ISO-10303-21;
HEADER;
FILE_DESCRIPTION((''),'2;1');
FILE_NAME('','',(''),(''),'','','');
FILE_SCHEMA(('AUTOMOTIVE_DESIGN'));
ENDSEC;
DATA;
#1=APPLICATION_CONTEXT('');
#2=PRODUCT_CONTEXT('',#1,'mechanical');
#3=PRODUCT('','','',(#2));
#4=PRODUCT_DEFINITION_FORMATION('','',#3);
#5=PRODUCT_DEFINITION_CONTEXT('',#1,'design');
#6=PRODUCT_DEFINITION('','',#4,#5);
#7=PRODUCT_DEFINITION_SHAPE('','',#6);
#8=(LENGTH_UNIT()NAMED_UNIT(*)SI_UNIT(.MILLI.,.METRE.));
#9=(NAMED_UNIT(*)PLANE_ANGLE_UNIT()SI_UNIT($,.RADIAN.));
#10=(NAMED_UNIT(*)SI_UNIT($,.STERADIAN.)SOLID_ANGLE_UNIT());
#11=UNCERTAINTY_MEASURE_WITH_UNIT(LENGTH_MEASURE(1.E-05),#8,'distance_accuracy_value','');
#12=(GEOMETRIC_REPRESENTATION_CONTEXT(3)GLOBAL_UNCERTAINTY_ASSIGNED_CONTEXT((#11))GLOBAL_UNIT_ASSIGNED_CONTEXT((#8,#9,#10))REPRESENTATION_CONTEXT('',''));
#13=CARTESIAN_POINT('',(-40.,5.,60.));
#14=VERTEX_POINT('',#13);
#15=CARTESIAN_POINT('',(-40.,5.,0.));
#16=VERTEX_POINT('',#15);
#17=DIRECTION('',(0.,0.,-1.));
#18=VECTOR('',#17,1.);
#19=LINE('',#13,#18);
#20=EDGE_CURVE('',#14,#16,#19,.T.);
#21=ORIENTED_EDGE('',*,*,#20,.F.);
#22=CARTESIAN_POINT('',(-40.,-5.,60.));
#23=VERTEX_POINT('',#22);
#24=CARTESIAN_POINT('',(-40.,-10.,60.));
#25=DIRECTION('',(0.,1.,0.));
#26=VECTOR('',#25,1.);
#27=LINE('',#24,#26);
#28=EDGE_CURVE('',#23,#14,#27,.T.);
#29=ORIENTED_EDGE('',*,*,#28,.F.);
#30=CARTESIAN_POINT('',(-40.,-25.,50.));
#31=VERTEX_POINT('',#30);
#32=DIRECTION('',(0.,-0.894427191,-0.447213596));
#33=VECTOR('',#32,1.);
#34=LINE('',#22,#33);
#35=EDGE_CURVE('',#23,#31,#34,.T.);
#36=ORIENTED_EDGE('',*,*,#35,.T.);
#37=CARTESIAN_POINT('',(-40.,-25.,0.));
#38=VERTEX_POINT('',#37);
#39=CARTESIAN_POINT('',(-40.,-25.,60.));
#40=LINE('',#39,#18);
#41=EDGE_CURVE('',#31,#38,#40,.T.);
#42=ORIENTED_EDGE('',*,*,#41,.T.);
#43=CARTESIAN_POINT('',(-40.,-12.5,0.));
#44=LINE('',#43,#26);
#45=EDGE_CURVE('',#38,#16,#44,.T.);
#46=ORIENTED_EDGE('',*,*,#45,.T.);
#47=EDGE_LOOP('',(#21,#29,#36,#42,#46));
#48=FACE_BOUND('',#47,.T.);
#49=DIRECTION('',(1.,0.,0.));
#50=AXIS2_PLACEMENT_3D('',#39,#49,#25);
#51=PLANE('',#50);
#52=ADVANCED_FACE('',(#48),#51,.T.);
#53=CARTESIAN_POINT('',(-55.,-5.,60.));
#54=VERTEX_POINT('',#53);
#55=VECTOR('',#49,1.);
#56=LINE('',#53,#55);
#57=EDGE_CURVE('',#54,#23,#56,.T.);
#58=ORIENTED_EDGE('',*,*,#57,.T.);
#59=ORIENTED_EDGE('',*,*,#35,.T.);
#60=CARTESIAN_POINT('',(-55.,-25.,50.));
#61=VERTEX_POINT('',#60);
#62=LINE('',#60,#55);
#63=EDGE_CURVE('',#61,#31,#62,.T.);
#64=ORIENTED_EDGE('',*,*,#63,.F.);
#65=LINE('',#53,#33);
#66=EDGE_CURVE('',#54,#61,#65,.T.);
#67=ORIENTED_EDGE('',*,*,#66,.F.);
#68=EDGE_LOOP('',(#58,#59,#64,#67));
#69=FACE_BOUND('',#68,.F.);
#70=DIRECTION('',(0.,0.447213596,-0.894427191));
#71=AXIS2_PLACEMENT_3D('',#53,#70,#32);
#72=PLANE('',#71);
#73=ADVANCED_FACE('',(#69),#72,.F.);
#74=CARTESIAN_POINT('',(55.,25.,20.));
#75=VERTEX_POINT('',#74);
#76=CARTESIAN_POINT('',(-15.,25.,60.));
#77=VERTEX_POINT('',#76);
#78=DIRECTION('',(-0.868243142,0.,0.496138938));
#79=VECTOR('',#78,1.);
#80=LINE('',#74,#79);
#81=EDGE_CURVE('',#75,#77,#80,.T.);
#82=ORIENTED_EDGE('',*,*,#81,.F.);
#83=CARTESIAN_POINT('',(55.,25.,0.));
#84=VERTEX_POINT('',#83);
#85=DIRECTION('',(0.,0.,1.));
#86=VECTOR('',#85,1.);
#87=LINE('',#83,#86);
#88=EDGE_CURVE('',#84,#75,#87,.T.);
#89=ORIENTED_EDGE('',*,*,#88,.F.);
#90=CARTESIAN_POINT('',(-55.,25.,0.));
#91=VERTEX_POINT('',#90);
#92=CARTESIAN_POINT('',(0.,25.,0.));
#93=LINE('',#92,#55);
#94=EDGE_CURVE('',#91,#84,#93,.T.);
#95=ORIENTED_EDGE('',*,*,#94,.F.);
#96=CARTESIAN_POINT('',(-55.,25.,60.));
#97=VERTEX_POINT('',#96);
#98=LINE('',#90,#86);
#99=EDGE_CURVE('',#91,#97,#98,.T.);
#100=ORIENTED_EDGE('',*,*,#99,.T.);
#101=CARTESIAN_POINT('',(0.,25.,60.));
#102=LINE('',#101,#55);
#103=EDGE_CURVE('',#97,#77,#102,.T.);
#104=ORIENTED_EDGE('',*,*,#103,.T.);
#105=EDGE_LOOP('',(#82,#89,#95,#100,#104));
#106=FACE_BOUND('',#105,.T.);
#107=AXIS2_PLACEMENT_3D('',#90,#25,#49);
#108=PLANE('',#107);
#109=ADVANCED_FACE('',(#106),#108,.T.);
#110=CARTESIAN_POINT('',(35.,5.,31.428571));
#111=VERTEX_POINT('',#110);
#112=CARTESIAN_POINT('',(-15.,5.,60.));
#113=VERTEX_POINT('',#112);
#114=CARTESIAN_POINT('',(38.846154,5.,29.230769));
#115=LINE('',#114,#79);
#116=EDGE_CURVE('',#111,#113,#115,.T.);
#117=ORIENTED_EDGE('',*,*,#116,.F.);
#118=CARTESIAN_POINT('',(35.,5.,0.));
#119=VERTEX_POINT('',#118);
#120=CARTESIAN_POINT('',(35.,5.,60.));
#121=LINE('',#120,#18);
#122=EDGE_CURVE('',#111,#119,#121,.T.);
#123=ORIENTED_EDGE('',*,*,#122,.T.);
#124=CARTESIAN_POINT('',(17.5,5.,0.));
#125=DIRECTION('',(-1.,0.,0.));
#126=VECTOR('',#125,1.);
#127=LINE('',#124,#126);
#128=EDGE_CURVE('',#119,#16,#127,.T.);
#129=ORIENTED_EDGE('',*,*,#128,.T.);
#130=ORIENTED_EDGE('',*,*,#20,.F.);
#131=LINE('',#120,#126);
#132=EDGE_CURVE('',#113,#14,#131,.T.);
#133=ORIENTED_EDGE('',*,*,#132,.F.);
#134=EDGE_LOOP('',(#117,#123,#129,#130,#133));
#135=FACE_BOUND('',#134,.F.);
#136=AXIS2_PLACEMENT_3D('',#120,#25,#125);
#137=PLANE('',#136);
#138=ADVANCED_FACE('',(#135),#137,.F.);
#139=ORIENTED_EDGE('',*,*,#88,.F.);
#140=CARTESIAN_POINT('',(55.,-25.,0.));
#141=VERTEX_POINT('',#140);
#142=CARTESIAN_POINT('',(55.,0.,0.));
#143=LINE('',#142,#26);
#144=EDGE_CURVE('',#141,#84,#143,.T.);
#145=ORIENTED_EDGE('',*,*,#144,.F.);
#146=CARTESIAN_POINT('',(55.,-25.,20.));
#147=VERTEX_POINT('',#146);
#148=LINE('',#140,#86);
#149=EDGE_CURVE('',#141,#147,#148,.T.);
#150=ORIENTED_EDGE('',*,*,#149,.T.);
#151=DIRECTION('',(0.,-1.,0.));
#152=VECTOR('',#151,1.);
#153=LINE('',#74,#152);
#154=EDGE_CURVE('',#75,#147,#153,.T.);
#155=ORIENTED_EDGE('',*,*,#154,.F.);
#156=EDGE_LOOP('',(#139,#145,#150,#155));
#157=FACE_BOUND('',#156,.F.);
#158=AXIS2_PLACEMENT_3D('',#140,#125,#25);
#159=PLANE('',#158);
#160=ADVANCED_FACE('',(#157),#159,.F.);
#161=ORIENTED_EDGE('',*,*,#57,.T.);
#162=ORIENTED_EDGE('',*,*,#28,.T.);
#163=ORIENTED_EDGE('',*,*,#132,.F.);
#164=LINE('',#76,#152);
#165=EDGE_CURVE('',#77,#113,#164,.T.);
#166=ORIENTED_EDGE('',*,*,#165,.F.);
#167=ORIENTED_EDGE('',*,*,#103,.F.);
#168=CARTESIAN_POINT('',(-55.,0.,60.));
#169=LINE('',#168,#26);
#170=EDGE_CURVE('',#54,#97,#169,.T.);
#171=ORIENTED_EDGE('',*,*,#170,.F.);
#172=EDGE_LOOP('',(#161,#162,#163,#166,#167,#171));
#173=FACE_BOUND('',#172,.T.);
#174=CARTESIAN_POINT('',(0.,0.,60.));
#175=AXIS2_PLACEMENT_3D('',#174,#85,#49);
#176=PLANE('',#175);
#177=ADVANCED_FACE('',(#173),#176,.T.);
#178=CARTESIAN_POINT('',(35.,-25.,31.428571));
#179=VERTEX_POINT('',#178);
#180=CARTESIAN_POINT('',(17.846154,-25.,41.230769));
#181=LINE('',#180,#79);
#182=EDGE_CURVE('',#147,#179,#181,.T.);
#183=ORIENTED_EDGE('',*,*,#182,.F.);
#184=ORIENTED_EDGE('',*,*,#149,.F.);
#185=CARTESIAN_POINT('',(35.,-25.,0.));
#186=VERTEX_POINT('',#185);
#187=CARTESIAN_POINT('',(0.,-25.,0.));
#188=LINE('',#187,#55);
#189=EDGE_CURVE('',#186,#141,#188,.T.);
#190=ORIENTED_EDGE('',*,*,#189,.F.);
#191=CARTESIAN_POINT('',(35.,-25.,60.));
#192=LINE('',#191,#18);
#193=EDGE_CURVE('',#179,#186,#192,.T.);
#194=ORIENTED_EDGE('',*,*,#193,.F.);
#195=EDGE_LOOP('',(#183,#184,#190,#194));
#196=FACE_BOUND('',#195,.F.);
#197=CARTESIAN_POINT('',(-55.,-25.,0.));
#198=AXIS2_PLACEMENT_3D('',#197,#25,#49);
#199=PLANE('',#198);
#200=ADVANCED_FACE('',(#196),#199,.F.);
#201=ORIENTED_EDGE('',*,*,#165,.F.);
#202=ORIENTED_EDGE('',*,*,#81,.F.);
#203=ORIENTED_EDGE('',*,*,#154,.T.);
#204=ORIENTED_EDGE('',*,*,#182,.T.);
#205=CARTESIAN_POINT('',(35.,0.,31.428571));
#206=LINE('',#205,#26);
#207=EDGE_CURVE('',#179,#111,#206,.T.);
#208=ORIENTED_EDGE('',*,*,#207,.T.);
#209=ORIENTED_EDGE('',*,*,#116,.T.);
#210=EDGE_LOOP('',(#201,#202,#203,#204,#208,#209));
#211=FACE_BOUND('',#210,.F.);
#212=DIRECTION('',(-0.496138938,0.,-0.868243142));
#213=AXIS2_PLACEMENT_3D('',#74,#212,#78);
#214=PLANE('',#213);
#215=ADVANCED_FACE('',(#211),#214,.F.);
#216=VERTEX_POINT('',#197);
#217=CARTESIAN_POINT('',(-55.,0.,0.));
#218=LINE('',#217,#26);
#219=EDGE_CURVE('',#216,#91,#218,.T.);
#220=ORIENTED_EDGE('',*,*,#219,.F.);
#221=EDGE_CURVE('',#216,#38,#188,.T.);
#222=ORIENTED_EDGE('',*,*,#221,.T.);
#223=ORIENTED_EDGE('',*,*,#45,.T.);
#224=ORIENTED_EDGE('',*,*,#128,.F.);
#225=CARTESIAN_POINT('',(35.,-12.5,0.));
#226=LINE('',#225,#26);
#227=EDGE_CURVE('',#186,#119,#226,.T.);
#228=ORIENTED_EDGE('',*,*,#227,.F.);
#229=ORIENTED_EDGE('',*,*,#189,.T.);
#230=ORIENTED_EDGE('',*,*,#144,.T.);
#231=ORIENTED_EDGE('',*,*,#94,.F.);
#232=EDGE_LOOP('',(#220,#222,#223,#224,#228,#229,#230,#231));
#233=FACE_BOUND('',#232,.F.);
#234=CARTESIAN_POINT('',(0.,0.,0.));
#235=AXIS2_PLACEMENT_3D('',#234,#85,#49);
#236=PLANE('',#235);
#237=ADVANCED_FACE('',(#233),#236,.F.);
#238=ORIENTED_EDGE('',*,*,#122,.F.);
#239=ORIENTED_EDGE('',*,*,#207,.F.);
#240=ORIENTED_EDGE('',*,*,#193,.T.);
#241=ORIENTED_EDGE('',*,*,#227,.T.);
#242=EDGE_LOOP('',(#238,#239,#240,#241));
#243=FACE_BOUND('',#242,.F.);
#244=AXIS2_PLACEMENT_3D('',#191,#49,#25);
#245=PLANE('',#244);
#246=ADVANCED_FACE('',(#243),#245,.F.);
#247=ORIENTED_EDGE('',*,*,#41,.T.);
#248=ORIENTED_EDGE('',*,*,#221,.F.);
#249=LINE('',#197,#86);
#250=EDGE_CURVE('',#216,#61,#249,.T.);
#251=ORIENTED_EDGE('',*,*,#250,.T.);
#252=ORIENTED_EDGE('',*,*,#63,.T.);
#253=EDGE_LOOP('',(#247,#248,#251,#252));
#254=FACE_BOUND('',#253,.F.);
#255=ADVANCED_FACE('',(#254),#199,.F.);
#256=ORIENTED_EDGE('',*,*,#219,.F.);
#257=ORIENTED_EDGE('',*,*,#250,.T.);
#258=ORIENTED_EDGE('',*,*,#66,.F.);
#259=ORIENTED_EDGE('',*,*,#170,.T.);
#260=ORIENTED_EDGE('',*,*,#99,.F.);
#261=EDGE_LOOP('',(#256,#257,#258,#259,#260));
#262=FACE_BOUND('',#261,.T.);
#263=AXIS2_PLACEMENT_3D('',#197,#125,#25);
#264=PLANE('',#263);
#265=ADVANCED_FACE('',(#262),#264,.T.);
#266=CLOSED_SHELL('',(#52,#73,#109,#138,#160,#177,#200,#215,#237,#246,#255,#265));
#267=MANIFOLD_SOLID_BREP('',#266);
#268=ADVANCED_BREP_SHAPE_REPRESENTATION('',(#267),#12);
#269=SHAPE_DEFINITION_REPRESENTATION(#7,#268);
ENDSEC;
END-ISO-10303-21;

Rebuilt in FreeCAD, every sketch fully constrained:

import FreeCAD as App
import Part
import Sketcher

V = App.Vector
Q = App.Units.Quantity


def add_polygon(sketch, points):
    """Adds a closed chain of lines whose ends are joined by coincident constraints."""
    first, n = sketch.GeometryCount, len(points)
    for a, b in zip(points, points[1:] + points[:1]):
        sketch.addGeometry(Part.LineSegment(App.Vector(*a, 0), App.Vector(*b, 0)), False)
    for i in range(n):
        sketch.addConstraint(Sketcher.Constraint("Coincident", first + i, 2, first + (i + 1) % n, 1))

doc = App.newDocument("Part")
body = doc.addObject("PartDesign::Body", "Body")

sketch1 = body.newObject("Sketcher::SketchObject", "Sketch")
sketch1.AttachmentSupport = (doc.getObject("XY_Plane"), [""])
sketch1.MapMode = "FlatFace"
add_polygon(sketch1, [(-55, 25), (-55, -25), (55, -25), (55, 25)])
sketch1.addConstraint([
    Sketcher.Constraint("Vertical", 0),
    Sketcher.Constraint("Horizontal", 1),
    Sketcher.Constraint("Vertical", 2),
    Sketcher.Constraint("Horizontal", 3),
    Sketcher.Constraint("Symmetric", 0, 2, 2, 2, -1, 1),
    Sketcher.Constraint("DistanceX", 1, 1, 1, 2, Q("110 mm")),
    Sketcher.Constraint("DistanceY", 0, 2, 0, 1, Q("50 mm")),
])
pad1 = body.newObject("PartDesign::Pad", "Pad")
pad1.Profile = sketch1
pad1.Length = 60

sketch2 = body.newObject("Sketcher::SketchObject", "Sketch001")
sketch2.AttachmentSupport = (doc.getObject("XY_Plane"), [""])
sketch2.MapMode = "FlatFace"
sketch2.AttachmentOffset = App.Placement(V(0, 0, 60), App.Rotation())
add_polygon(sketch2, [(-40, 5), (-40, -25), (35, -25), (35, 5)])
sketch2.addConstraint([
    Sketcher.Constraint("Vertical", 0),
    Sketcher.Constraint("Horizontal", 1),
    Sketcher.Constraint("Vertical", 2),
    Sketcher.Constraint("Horizontal", 3),
    Sketcher.Constraint("DistanceX", 1, 1, 1, 2, Q("75 mm")),
    Sketcher.Constraint("DistanceY", 0, 2, 0, 1, Q("30 mm")),
    Sketcher.Constraint("DistanceX", 0, 2, -1, 1, Q("40 mm")),
    Sketcher.Constraint("DistanceY", 0, 2, -1, 1, Q("25 mm")),
])
pocket1 = body.newObject("PartDesign::Pocket", "Pocket")
pocket1.Profile = sketch2
pocket1.Type = "ThroughAll"

sketch3 = body.newObject("Sketcher::SketchObject", "Sketch002")
sketch3.AttachmentSupport = (doc.getObject("YZ_Plane"), [""])
sketch3.MapMode = "FlatFace"
sketch3.AttachmentOffset = App.Placement(V(0, 0, -55), App.Rotation())
add_polygon(sketch3, [(-25, 50), (-25, 60), (-5, 60)])
sketch3.addConstraint([
    Sketcher.Constraint("Vertical", 0),
    Sketcher.Constraint("Horizontal", 1),
    Sketcher.Constraint("DistanceX", 1, 1, 1, 2, Q("20 mm")),
    Sketcher.Constraint("DistanceY", 0, 1, 0, 2, Q("10 mm")),
    Sketcher.Constraint("DistanceX", 0, 2, -1, 1, Q("25 mm")),
    Sketcher.Constraint("DistanceY", -1, 1, 0, 2, Q("60 mm")),
])
pocket2 = body.newObject("PartDesign::Pocket", "Pocket001")
pocket2.Profile = sketch3
pocket2.Length = 15
pocket2.Reversed = True

sketch4 = body.newObject("Sketcher::SketchObject", "Sketch003")
sketch4.AttachmentSupport = (doc.getObject("XZ_Plane"), [""])
sketch4.MapMode = "FlatFace"
sketch4.AttachmentOffset = App.Placement(V(0, 0, -25), App.Rotation())
add_polygon(sketch4, [(-15, 60), (55, 60), (55, 20)])
sketch4.addConstraint([
    Sketcher.Constraint("Horizontal", 0),
    Sketcher.Constraint("Vertical", 1),
    Sketcher.Constraint("DistanceX", 0, 1, 0, 2, Q("70 mm")),
    Sketcher.Constraint("DistanceY", 1, 2, 1, 1, Q("40 mm")),
    Sketcher.Constraint("DistanceX", -1, 1, 0, 2, Q("55 mm")),
    Sketcher.Constraint("DistanceY", -1, 1, 0, 2, Q("60 mm")),
])
pocket3 = body.newObject("PartDesign::Pocket", "Pocket002")
pocket3.Profile = sketch4
pocket3.Type = "ThroughAll"
pocket3.Reversed = True

doc.recompute()
